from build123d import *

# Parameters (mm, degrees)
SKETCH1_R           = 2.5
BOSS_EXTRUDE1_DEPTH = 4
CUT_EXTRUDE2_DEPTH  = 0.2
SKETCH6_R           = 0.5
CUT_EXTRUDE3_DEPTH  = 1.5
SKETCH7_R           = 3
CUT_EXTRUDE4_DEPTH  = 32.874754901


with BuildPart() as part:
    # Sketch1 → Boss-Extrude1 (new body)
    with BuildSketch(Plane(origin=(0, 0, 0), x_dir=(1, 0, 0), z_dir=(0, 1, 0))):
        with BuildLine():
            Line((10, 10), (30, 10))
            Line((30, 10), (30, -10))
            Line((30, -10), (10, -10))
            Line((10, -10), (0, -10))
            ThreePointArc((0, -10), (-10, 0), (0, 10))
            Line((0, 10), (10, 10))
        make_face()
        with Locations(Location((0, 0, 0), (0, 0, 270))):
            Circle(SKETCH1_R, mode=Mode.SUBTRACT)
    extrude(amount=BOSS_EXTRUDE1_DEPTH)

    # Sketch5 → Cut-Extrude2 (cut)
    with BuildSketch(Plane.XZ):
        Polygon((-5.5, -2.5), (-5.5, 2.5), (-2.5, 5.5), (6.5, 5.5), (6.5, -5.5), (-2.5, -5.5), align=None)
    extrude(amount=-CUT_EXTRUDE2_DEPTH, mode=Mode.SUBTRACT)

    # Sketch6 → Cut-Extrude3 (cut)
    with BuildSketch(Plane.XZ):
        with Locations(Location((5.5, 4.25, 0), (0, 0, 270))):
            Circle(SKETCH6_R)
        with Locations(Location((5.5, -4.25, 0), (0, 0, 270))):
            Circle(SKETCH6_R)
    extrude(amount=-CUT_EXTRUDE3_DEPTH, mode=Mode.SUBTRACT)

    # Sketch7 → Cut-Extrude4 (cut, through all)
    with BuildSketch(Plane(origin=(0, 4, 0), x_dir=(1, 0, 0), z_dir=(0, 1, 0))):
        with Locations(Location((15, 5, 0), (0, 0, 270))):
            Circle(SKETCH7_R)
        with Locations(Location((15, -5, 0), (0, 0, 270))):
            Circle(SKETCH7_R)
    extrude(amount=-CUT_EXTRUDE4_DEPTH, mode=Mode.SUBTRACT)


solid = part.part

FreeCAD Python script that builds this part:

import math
import FreeCAD as App
import Part
import Sketcher
from FreeCAD import Vector

doc = App.newDocument("Part")
body = doc.addObject("PartDesign::Body", "Body")

sketch1 = body.newObject("Sketcher::SketchObject", "Sketch")
sketch1.AttachmentSupport = (doc.getObject("XZ_Plane"), [""])
sketch1.MapMode = "FlatFace"
sketch1.addGeometry(Part.LineSegment(Vector(30, 10, 0), Vector(30, -10, 0)), False)
sketch1.addGeometry(Part.LineSegment(Vector(30, -10, 0), Vector(0, -10, 0)), False)
sketch1.addGeometry(Part.ArcOfCircle(Part.Circle(Vector(0, 0, 0), Vector(0, 0, 1), 10), math.radians(90), math.radians(270)), False)
sketch1.addGeometry(Part.LineSegment(Vector(0, 10, 0), Vector(30, 10, 0)), False)
sketch1.addGeometry(Part.Circle(Vector(0, 0, 0), Vector(0, 0, 1), 2.5), False)
sketch1.addConstraint(Sketcher.Constraint("Coincident", 0, 2, 1, 1))
sketch1.addConstraint(Sketcher.Constraint("Tangent", 1, 2, 2, 2))
sketch1.addConstraint(Sketcher.Constraint("Tangent", 2, 1, 3, 1))
sketch1.addConstraint(Sketcher.Constraint("Coincident", 3, 2, 0, 1))
sketch1.addConstraint(Sketcher.Constraint("Vertical", 0))
sketch1.addConstraint(Sketcher.Constraint("Horizontal", 1))
sketch1.addConstraint(Sketcher.Constraint("Horizontal", 3))
sketch1.addConstraint(Sketcher.Constraint("Coincident", 2, 3, -1, 1))
sketch1.addConstraint(Sketcher.Constraint("Coincident", 4, 3, -1, 1))
sketch1.addConstraint(Sketcher.Constraint("Diameter", 4, 5.0))
sketch1.addConstraint(Sketcher.Constraint("Radius", 2, 10.0))
sketch1.addConstraint(Sketcher.Constraint("DistanceX", 1, 2, 1, 1, 30.0))
pad1 = body.newObject("PartDesign::Pad", "Pad")
pad1.Profile = sketch1
pad1.Length = 4
pad1.Reversed = True

sketch2 = body.newObject("Sketcher::SketchObject", "Sketch001")
sketch2.AttachmentSupport = (doc.getObject("XZ_Plane"), [""])
sketch2.MapMode = "FlatFace"
sketch2.addGeometry(Part.LineSegment(Vector(-5.5, 2.5, 0), Vector(-5.5, -2.5, 0)), False)
sketch2.addGeometry(Part.LineSegment(Vector(-5.5, -2.5, 0), Vector(-2.5, -5.5, 0)), False)
sketch2.addGeometry(Part.LineSegment(Vector(-2.5, -5.5, 0), Vector(6.5, -5.5, 0)), False)
sketch2.addGeometry(Part.LineSegment(Vector(6.5, -5.5, 0), Vector(6.5, 5.5, 0)), False)
sketch2.addGeometry(Part.LineSegment(Vector(6.5, 5.5, 0), Vector(-2.5, 5.5, 0)), False)
sketch2.addGeometry(Part.LineSegment(Vector(-2.5, 5.5, 0), Vector(-5.5, 2.5, 0)), False)
sketch2.addConstraint(Sketcher.Constraint("Coincident", 0, 2, 1, 1))
sketch2.addConstraint(Sketcher.Constraint("Coincident", 1, 2, 2, 1))
sketch2.addConstraint(Sketcher.Constraint("Coincident", 2, 2, 3, 1))
sketch2.addConstraint(Sketcher.Constraint("Coincident", 3, 2, 4, 1))
sketch2.addConstraint(Sketcher.Constraint("Coincident", 4, 2, 5, 1))
sketch2.addConstraint(Sketcher.Constraint("Coincident", 5, 2, 0, 1))
sketch2.addConstraint(Sketcher.Constraint("Vertical", 0))
sketch2.addConstraint(Sketcher.Constraint("Horizontal", 2))
sketch2.addConstraint(Sketcher.Constraint("Vertical", 3))
sketch2.addConstraint(Sketcher.Constraint("Horizontal", 4))
sketch2.addConstraint(Sketcher.Constraint("Symmetric", 1, 2, 4, 2, -1))
sketch2.addConstraint(Sketcher.Constraint("Perpendicular", 1, 5))
sketch2.addConstraint(Sketcher.Constraint("Equal", 1, 5))
sketch2.addConstraint(Sketcher.Constraint("DistanceX", 2, 1, 2, 2, 9.0))
sketch2.addConstraint(Sketcher.Constraint("DistanceY", 0, 2, 0, 1, 5.0))
sketch2.addConstraint(Sketcher.Constraint("DistanceY", 3, 1, 3, 2, 11.0))
sketch2.addConstraint(Sketcher.Constraint("DistanceX", 0, 2, -1, 1, 5.5))
pocket1 = body.newObject("PartDesign::Pocket", "Pocket")
pocket1.Profile = sketch2
pocket1.Length = 0.2

sketch3 = body.newObject("Sketcher::SketchObject", "Sketch002")
sketch3.AttachmentSupport = (doc.getObject("XZ_Plane"), [""])
sketch3.MapMode = "FlatFace"
sketch3.addGeometry(Part.Circle(Vector(5.5, 4.25, 0), Vector(0, 0, 1), 0.5), False)
sketch3.addGeometry(Part.Circle(Vector(5.5, -4.25, 0), Vector(0, 0, 1), 0.5), False)
sketch3.addConstraint(Sketcher.Constraint("Equal", 0, 1))
sketch3.addConstraint(Sketcher.Constraint("Symmetric", 0, 3, 1, 3, -1))
sketch3.addConstraint(Sketcher.Constraint("Diameter", 0, 1.0))
sketch3.addConstraint(Sketcher.Constraint("DistanceX", -1, 1, 0, 3, 5.5))
sketch3.addConstraint(Sketcher.Constraint("DistanceY", 1, 3, 0, 3, 8.5))
pocket2 = body.newObject("PartDesign::Pocket", "Pocket001")
pocket2.Profile = sketch3
pocket2.Length = 1.5

sketch4 = body.newObject("Sketcher::SketchObject", "Sketch003")
sketch4.AttachmentSupport = (doc.getObject("XZ_Plane"), [""])
sketch4.MapMode = "FlatFace"
sketch4.AttachmentOffset = App.Placement(Vector(0, 0, -4), App.Rotation())
sketch4.addGeometry(Part.Circle(Vector(15, -5, 0), Vector(0, 0, 1), 3), False)
sketch4.addGeometry(Part.Circle(Vector(15, 5, 0), Vector(0, 0, 1), 3), False)
sketch4.addConstraint(Sketcher.Constraint("Equal", 0, 1))
sketch4.addConstraint(Sketcher.Constraint("Symmetric", 0, 3, 1, 3, -1))
sketch4.addConstraint(Sketcher.Constraint("Diameter", 0, 6.0))
sketch4.addConstraint(Sketcher.Constraint("DistanceX", -1, 1, 0, 3, 15.0))
sketch4.addConstraint(Sketcher.Constraint("DistanceY", 0, 3, -1, 1, 5.0))
pocket3 = body.newObject("PartDesign::Pocket", "Pocket002")
pocket3.Profile = sketch4
pocket3.Type = "ThroughAll"
pocket3.Reversed = True

doc.recompute()
